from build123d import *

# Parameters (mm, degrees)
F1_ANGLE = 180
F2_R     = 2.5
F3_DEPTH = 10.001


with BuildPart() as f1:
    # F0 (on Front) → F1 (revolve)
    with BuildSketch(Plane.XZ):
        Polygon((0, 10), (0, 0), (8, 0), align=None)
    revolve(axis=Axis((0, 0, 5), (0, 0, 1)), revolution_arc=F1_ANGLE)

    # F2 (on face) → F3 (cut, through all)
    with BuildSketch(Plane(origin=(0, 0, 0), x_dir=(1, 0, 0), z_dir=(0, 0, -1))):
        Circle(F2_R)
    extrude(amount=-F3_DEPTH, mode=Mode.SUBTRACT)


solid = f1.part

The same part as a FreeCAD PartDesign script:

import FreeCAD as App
import Part
import Sketcher

doc = App.newDocument("Part")
body = doc.addObject("PartDesign::Body", "Body")

sketch1 = body.newObject("Sketcher::SketchObject", "Sketch")
sketch1.AttachmentSupport = (doc.getObject("XZ_Plane"), [""])
sketch1.MapMode = "FlatFace"
sketch1.addGeometry([
    Part.LineSegment(App.Vector(0, 10, 0), App.Vector(0, 0, 0)),
    Part.LineSegment(App.Vector(0, 0, 0), App.Vector(8, 0, 0)),
    Part.LineSegment(App.Vector(8, 0, 0), App.Vector(0, 10, 0)),
], False)
sketch1.addConstraint([
    Sketcher.Constraint("Coincident", 0, 2, 1, 1),
    Sketcher.Constraint("Coincident", 1, 2, 2, 1),
    Sketcher.Constraint("Coincident", 2, 2, 0, 1),
    Sketcher.Constraint("Vertical", 0),
    Sketcher.Constraint("Horizontal", 1),
    Sketcher.Constraint("Coincident", 0, 2, -1, 1),
    Sketcher.Constraint("DistanceX", 1, 1, 1, 2, 8.0),
    Sketcher.Constraint("DistanceY", 0, 2, 0, 1, 10.0),
])
revolution = body.newObject("PartDesign::Revolution", "Revolution")
revolution.Profile = sketch1
revolution.ReferenceAxis = (sketch1, ["V_Axis"])
revolution.Angle = 180

sketch2 = body.newObject("Sketcher::SketchObject", "Sketch001")
sketch2.AttachmentSupport = (doc.getObject("XY_Plane"), [""])
sketch2.MapMode = "FlatFace"
sketch2.addGeometry(Part.Circle(App.Vector(0, 0, 0), App.Vector(0, 0, 1), 2.5), False)
sketch2.addConstraint([
    Sketcher.Constraint("Coincident", 0, 3, -1, 1),
    Sketcher.Constraint("Diameter", 0, 5.0),
])
pocket1 = body.newObject("PartDesign::Pocket", "Pocket")
pocket1.Profile = sketch2
pocket1.Type = "ThroughAll"
pocket1.Reversed = True

doc.recompute()
